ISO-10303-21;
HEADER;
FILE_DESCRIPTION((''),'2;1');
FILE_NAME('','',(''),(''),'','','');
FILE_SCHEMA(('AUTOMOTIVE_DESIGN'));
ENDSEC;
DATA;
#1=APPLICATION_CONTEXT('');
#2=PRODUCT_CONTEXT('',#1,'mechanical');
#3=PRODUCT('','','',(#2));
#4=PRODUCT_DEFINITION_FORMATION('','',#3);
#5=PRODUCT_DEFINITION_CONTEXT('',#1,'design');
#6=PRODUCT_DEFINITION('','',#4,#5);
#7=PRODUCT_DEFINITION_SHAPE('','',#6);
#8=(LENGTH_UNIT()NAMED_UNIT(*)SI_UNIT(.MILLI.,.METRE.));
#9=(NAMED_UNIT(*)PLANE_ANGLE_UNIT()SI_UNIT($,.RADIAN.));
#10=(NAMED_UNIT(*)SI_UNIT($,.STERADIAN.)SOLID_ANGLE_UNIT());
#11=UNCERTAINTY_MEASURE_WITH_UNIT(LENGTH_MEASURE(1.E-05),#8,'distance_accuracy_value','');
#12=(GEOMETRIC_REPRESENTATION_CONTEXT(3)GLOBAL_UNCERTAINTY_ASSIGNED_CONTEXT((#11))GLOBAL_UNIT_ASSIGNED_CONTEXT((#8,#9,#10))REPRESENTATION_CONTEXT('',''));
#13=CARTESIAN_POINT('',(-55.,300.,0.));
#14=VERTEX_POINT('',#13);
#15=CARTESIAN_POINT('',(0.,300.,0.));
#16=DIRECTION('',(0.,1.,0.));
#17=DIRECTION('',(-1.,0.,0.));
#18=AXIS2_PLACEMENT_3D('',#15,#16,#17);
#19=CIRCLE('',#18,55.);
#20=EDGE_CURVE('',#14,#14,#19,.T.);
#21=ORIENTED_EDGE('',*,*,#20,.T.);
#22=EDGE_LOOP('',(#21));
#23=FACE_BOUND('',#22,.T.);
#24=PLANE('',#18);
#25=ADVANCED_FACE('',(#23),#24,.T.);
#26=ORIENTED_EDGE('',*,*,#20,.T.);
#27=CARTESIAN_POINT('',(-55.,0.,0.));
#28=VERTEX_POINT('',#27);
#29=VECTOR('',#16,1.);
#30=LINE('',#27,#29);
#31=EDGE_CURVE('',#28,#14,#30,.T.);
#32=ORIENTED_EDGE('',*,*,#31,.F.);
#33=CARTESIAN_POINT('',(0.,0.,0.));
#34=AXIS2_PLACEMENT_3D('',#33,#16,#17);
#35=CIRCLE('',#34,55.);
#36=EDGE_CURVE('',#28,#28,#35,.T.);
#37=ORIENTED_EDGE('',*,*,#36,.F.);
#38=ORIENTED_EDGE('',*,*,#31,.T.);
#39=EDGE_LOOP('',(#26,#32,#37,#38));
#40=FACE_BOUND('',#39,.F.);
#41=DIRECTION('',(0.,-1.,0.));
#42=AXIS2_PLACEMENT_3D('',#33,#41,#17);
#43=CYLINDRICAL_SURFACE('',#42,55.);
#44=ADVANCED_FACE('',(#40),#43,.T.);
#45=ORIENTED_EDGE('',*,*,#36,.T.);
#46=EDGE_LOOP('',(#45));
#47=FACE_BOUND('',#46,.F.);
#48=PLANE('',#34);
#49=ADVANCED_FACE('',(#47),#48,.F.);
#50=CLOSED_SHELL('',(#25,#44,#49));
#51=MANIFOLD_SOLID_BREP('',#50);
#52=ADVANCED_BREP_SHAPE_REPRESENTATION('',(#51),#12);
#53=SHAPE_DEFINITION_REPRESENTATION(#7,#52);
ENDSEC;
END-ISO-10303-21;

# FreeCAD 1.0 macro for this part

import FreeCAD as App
import Part
import Sketcher

doc = App.newDocument("Part")
body = doc.addObject("PartDesign::Body", "Body")

sketch1 = body.newObject("Sketcher::SketchObject", "Sketch")
sketch1.AttachmentSupport = (doc.getObject("XZ_Plane"), [""])
sketch1.MapMode = "FlatFace"
sketch1.addGeometry(Part.Circle(App.Vector(0, 0, 0), App.Vector(0, 0, 1), 55), False)
sketch1.addConstraint(Sketcher.Constraint("Coincident", 0, 3, -1, 1))
sketch1.addConstraint(Sketcher.Constraint("Diameter", 0, 110.0))
pad1 = body.newObject("PartDesign::Pad", "Pad")
pad1.Profile = sketch1
pad1.Length = 300
pad1.Reversed = True

doc.recompute()
